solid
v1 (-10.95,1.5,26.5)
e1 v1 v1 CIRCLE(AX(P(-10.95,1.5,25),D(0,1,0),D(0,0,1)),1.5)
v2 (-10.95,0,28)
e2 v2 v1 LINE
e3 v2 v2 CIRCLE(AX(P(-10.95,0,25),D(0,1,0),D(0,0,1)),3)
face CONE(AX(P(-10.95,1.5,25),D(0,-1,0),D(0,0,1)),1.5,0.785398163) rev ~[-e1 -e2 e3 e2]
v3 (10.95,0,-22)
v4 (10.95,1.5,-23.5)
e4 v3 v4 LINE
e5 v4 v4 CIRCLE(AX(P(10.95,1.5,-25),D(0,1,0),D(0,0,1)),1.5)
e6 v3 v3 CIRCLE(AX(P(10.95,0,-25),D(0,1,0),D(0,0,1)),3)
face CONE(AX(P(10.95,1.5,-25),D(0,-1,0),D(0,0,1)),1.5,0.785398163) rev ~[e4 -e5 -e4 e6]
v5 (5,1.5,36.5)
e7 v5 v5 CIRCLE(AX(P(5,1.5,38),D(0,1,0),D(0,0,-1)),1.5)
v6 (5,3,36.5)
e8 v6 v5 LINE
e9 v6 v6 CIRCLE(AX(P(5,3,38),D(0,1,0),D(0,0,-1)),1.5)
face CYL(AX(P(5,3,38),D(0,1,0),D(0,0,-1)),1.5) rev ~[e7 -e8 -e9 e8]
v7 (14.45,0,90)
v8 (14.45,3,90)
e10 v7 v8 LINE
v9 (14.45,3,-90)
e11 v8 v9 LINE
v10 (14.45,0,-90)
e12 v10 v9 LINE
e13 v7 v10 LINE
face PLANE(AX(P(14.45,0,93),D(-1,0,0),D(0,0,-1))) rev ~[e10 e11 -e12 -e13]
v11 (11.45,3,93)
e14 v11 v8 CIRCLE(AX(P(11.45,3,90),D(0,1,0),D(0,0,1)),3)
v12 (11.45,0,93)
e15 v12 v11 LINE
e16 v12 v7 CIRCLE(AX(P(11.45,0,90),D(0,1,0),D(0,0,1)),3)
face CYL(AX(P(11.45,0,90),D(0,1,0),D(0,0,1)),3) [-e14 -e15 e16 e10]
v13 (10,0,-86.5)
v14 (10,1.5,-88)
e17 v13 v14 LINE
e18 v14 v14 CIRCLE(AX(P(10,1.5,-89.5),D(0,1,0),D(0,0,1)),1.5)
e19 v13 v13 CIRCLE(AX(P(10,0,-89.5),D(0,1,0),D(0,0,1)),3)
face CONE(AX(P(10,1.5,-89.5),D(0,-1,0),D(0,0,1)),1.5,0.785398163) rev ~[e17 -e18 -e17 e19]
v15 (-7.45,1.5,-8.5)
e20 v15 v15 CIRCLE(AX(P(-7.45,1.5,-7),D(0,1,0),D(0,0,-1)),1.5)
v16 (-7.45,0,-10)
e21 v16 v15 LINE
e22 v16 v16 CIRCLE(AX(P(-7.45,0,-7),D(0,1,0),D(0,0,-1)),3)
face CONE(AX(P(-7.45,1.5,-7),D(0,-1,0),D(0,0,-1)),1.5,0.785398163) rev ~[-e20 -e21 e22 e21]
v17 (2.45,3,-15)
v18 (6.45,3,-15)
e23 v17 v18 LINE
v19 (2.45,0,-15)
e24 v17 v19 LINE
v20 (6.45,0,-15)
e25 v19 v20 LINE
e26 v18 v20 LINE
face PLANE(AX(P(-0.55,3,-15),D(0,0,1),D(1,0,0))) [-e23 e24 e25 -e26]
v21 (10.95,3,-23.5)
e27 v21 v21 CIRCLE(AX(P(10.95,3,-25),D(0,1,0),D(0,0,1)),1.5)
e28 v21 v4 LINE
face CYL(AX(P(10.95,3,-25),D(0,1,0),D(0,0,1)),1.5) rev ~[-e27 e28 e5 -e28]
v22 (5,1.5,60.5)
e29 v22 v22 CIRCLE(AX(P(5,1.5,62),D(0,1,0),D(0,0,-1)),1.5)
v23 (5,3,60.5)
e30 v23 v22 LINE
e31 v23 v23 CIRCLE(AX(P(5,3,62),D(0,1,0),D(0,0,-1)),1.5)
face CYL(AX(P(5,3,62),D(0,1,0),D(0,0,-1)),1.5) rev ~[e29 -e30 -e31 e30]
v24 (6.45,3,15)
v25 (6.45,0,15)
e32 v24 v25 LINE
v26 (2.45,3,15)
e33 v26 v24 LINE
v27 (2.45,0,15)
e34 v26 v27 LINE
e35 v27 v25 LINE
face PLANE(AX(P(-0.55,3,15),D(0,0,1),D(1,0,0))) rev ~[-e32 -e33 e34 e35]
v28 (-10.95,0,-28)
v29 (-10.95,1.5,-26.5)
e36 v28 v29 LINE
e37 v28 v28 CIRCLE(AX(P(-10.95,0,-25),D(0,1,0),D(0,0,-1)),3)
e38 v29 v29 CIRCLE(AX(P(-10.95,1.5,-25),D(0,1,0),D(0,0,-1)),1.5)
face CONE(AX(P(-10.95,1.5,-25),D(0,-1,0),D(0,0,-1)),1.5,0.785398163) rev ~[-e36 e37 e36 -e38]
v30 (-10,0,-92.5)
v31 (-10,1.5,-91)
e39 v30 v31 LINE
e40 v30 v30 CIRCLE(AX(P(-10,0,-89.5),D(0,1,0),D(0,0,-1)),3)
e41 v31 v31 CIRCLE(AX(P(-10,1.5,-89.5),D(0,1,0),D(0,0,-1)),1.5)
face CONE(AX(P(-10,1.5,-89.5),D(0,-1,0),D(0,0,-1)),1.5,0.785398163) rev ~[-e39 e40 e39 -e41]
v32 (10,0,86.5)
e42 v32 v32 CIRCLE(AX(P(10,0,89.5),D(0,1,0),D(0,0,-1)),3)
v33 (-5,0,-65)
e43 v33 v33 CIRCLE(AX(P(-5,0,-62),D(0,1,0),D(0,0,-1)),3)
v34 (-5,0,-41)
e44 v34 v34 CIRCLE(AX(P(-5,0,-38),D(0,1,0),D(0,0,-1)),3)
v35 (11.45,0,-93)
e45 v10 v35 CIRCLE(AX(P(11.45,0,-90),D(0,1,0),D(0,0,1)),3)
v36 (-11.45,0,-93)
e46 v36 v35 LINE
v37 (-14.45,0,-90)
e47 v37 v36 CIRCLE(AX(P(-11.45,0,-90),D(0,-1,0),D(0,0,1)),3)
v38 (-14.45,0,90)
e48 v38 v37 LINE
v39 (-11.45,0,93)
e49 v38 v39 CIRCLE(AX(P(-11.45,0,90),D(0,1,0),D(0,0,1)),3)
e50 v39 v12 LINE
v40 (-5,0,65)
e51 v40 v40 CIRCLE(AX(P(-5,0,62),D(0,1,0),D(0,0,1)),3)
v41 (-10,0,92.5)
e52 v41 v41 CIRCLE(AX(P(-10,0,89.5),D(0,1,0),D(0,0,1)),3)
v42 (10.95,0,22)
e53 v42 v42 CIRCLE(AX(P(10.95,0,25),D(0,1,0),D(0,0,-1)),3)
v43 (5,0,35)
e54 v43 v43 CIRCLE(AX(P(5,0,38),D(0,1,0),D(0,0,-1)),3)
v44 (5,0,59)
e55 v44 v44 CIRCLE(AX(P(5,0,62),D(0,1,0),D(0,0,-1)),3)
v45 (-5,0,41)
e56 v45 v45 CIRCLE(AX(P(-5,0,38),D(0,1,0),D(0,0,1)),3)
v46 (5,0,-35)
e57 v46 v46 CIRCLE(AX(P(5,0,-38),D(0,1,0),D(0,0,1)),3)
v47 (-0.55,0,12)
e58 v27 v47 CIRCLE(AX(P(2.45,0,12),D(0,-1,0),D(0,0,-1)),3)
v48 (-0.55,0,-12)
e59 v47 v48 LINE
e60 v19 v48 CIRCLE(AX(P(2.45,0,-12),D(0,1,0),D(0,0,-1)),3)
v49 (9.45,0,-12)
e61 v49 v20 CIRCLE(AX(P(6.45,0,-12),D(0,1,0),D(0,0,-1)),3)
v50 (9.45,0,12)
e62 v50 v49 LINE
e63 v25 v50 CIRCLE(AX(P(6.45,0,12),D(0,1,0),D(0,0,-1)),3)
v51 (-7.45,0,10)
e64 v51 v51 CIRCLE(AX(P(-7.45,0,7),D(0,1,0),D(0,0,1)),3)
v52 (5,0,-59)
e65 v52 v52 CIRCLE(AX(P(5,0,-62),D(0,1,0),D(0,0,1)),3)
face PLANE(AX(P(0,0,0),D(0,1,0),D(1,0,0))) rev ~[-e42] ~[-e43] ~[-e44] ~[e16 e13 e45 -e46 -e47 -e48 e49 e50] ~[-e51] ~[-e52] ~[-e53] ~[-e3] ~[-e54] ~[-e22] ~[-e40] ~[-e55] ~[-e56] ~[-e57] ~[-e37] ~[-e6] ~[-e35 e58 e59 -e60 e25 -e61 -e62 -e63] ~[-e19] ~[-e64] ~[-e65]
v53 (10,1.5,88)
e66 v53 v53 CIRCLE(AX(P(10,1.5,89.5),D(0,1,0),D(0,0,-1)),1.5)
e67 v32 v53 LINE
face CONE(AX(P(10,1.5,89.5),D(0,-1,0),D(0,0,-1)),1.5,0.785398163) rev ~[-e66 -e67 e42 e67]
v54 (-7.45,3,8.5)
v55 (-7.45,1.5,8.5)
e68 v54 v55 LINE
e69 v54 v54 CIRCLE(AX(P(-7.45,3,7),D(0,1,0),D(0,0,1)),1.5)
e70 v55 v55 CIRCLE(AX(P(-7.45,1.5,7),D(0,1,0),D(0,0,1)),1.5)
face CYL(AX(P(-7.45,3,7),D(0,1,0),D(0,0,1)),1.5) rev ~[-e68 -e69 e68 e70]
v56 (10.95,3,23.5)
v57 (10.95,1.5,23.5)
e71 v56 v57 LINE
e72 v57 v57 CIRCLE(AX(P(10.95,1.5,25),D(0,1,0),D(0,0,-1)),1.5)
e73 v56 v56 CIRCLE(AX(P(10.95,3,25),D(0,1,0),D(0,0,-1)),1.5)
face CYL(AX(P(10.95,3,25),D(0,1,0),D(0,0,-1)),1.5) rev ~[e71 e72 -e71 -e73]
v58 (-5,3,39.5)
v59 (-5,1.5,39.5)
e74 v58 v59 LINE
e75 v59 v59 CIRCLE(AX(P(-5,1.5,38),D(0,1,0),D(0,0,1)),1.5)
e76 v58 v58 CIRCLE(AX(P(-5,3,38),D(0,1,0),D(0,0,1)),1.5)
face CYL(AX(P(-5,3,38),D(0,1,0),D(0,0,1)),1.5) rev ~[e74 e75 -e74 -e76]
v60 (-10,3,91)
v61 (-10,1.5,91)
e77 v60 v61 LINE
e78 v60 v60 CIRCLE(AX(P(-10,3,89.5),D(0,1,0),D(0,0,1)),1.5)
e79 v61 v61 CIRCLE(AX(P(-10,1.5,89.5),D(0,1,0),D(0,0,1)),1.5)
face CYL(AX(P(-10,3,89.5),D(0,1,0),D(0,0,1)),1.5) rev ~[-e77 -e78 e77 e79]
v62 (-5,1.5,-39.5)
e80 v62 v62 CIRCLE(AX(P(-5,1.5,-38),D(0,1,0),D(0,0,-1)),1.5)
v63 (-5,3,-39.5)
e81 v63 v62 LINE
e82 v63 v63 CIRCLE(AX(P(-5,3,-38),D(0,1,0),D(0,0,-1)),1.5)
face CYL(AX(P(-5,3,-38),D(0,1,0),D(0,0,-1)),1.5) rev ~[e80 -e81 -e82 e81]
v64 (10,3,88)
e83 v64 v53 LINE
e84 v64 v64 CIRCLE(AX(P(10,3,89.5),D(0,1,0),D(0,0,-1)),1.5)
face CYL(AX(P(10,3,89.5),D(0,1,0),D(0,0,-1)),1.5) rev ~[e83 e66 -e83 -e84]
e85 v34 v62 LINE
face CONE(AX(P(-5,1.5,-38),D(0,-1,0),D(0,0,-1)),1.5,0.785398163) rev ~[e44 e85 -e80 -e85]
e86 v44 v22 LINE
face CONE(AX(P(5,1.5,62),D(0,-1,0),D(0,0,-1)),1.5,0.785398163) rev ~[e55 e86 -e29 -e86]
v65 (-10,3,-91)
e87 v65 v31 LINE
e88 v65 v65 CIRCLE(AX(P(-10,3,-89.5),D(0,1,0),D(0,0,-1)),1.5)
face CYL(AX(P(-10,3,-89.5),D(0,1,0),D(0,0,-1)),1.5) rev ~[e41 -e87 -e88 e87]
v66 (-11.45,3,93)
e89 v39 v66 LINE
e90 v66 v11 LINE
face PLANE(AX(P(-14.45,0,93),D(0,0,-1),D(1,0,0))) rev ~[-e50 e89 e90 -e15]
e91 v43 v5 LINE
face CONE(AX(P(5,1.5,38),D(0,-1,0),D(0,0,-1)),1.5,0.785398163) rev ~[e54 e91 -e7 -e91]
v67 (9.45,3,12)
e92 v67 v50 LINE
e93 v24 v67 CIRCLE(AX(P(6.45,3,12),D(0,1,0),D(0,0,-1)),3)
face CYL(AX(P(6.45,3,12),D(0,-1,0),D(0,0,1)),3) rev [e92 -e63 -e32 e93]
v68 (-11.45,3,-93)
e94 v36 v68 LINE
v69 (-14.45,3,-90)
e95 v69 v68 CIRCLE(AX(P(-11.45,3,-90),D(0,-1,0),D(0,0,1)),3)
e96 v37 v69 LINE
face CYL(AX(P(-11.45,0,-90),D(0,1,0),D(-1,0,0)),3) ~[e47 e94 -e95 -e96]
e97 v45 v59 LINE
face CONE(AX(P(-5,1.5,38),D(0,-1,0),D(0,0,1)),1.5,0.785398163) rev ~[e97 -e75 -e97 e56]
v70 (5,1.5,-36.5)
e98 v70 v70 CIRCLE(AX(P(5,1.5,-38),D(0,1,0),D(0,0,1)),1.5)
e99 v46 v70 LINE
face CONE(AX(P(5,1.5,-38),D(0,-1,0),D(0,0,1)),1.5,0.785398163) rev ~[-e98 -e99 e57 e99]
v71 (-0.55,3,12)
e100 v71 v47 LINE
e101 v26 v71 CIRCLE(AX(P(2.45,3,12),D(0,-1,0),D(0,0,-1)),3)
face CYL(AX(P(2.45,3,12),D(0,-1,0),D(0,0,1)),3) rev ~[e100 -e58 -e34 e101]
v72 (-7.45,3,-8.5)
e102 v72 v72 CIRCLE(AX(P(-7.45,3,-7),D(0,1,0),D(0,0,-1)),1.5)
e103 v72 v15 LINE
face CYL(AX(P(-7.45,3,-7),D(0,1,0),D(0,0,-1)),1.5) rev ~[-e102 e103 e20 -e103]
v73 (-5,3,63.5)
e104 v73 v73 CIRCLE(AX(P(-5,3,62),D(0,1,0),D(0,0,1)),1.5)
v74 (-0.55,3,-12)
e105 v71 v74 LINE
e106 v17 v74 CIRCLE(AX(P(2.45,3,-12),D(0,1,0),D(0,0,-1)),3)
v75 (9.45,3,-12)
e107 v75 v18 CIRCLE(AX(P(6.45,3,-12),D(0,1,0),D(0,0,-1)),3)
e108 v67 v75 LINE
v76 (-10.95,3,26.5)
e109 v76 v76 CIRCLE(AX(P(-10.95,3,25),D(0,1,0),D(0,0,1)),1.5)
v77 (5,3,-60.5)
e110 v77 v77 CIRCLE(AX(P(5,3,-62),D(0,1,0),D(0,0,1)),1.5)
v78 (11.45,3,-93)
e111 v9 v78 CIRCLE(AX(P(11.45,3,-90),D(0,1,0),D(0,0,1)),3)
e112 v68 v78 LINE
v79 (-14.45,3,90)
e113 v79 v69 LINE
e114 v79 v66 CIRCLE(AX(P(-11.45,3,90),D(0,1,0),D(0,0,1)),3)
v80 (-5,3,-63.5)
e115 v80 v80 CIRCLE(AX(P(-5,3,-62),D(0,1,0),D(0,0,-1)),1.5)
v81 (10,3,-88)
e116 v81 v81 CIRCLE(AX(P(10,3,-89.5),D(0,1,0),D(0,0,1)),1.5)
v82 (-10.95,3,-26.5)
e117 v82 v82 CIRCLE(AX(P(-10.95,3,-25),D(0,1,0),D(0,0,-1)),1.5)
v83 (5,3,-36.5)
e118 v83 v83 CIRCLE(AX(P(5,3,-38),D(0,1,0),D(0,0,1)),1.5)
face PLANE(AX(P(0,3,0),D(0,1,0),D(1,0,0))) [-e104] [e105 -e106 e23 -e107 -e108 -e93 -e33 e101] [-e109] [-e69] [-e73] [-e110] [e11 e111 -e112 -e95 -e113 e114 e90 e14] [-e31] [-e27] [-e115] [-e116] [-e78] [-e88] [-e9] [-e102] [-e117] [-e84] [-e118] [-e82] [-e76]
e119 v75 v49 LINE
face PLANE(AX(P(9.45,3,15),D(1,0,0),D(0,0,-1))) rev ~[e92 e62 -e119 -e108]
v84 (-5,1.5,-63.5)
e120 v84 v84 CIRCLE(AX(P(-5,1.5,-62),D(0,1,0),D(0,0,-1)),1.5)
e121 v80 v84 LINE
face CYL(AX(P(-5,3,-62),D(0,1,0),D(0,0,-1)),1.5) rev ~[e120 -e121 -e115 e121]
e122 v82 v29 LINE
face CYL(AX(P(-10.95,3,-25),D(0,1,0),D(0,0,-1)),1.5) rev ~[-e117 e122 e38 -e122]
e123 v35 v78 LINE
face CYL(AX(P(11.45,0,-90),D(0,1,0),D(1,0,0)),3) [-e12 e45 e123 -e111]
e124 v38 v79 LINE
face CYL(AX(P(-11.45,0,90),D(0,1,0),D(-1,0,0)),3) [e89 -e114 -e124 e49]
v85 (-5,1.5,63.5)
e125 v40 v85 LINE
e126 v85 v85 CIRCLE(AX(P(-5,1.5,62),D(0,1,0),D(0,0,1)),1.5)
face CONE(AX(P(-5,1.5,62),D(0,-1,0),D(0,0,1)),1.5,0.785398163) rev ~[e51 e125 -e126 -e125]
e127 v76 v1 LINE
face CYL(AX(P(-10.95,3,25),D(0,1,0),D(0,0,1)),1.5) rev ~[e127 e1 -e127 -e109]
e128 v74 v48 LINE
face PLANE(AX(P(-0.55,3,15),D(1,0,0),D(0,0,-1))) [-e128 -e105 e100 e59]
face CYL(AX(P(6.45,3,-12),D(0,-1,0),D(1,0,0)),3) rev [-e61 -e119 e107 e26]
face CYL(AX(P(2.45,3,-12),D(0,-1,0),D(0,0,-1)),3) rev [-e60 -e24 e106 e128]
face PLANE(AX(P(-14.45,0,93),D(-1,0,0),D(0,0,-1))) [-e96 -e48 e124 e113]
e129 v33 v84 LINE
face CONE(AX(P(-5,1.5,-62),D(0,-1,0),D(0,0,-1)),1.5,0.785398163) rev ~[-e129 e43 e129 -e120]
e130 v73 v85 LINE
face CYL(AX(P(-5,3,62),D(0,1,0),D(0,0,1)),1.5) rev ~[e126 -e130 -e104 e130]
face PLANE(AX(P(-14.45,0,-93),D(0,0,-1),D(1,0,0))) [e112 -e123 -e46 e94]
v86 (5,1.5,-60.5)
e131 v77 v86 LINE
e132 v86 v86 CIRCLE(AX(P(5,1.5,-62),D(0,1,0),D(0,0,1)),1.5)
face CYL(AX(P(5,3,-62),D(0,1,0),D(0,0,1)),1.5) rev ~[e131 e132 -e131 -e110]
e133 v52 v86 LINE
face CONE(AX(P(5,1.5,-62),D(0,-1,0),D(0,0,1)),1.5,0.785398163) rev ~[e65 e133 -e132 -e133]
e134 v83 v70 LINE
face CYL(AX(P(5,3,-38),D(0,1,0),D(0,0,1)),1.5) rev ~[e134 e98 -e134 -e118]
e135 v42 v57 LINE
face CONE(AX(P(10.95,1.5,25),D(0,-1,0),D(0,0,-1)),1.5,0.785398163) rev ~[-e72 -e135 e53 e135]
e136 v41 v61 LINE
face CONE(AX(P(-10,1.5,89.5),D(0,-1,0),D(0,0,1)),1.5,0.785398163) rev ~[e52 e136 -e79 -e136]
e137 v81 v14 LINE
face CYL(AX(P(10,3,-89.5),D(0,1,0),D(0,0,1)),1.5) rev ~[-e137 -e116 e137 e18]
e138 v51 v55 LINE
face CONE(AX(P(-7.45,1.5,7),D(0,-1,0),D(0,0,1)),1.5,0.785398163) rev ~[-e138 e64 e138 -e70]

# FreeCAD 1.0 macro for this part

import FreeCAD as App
import Part
import Sketcher
from FreeCAD import Vector
Q = App.Units.Quantity


def edges_at(feature, points):
    """Names of the edges that pass closest to the given points."""
    edges = feature.Shape.Edges
    near = lambda p: min(range(len(edges)), key=lambda i: edges[i].distToShape(Part.Vertex(*p))[0])
    return sorted({f"Edge{near(p) + 1}" for p in points})

doc = App.newDocument("Part")
body = doc.addObject("PartDesign::Body", "Body")

sketch1 = body.newObject("Sketcher::SketchObject", "Sketch")
sketch1.AttachmentSupport = (doc.getObject("XZ_Plane"), [""])
sketch1.MapMode = "FlatFace"
sketch1.addGeometry([
    Part.LineSegment(Vector(-14, -93, 0), Vector(-14, 93, 0)),
    Part.LineSegment(Vector(-14, 93, 0), Vector(14, 93, 0)),
    Part.LineSegment(Vector(14, 93, 0), Vector(14, -93, 0)),
    Part.LineSegment(Vector(14, -93, 0), Vector(-14, -93, 0)),
], False)
sketch1.addConstraint([
    Sketcher.Constraint("Coincident", 0, 2, 1, 1),
    Sketcher.Constraint("Coincident", 1, 2, 2, 1),
    Sketcher.Constraint("Coincident", 2, 2, 3, 1),
    Sketcher.Constraint("Coincident", 3, 2, 0, 1),
    Sketcher.Constraint("Vertical", 0),
    Sketcher.Constraint("Horizontal", 1),
    Sketcher.Constraint("Vertical", 2),
    Sketcher.Constraint("Horizontal", 3),
    Sketcher.Constraint("Symmetric", 0, 2, 2, 2, -1, 1),
    Sketcher.Constraint("DistanceY", 0, 1, 0, 2, Q("186 mm")),
    Sketcher.Constraint("DistanceX", 1, 1, 1, 2, Q("28.9 mm")),
])
pad1 = body.newObject("PartDesign::Pad", "Pad")
pad1.Profile = sketch1
pad1.Length = 3
pad1.Reversed = True
doc.recompute()

fillet = body.newObject("PartDesign::Fillet", "Fillet")
fillet.Base = (pad1, edges_at(pad1, [
    (14.45, 1.5, 93),
    (-14.45, 1.5, 93),
    (-14.45, 1.5, -93),
    (14.45, 1.5, -93),
]))
fillet.Radius = 3

sketch2 = body.newObject("Sketcher::SketchObject", "Sketch001")
sketch2.AttachmentSupport = (doc.getObject("XZ_Plane"), [""])
sketch2.MapMode = "FlatFace"
sketch2.AttachmentOffset = App.Placement(Vector(0, 0, -3), App.Rotation())
sketch2.addGeometry([
    Part.Circle(Vector(-10, 89.5, 0), Vector(0, 0, 1), 1.5),
    Part.Circle(Vector(10, 89.5, 0), Vector(0, 0, 1), 1.5),
    Part.Circle(Vector(10, -89.5, 0), Vector(0, 0, 1), 1.5),
    Part.Circle(Vector(-10, -89.5, 0), Vector(0, 0, 1), 1.5),
    Part.Circle(Vector(-5, 38, 0), Vector(0, 0, 1), 1.5),
    Part.Circle(Vector(-5, 62, 0), Vector(0, 0, 1), 1.5),
    Part.Circle(Vector(5, 38, 0), Vector(0, 0, 1), 1.5),
    Part.Circle(Vector(5, 62, 0), Vector(0, 0, 1), 1.5),
    Part.Circle(Vector(5, -62, 0), Vector(0, 0, 1), 1.5),
    Part.Circle(Vector(5, -38, 0), Vector(0, 0, 1), 1.5),
    Part.Circle(Vector(-5, -62, 0), Vector(0, 0, 1), 1.5),
    Part.Circle(Vector(-5, -38, 0), Vector(0, 0, 1), 1.5),
    Part.Circle(Vector(-7.5, 7, 0), Vector(0, 0, 1), 1.5),
    Part.Circle(Vector(-7.5, -7, 0), Vector(0, 0, 1), 1.5),
    Part.Circle(Vector(10.9, -25, 0), Vector(0, 0, 1), 1.5),
    Part.Circle(Vector(10.9, 25, 0), Vector(0, 0, 1), 1.5),
    Part.Circle(Vector(-10.9, 25, 0), Vector(0, 0, 1), 1.5),
    Part.Circle(Vector(-10.9, -25, 0), Vector(0, 0, 1), 1.5),
], False)
sketch2.addConstraint([
    Sketcher.Constraint("Equal", 0, 1),
    Sketcher.Constraint("Equal", 1, 2),
    Sketcher.Constraint("Equal", 2, 3),
    Sketcher.Constraint("Equal", 3, 4),
    Sketcher.Constraint("Equal", 4, 5),
    Sketcher.Constraint("Equal", 5, 6),
    Sketcher.Constraint("Equal", 6, 7),
    Sketcher.Constraint("Equal", 7, 8),
    Sketcher.Constraint("Equal", 8, 9),
    Sketcher.Constraint("Equal", 9, 10),
    Sketcher.Constraint("Equal", 10, 11),
    Sketcher.Constraint("Equal", 11, 12),
    Sketcher.Constraint("Equal", 12, 13),
    Sketcher.Constraint("Equal", 13, 14),
    Sketcher.Constraint("Equal", 14, 15),
    Sketcher.Constraint("Equal", 15, 16),
    Sketcher.Constraint("Equal", 16, 17),
    Sketcher.Constraint("Symmetric", 0, 3, 2, 3, -1, 1),
    Sketcher.Constraint("Symmetric", 1, 3, 3, 3, -1, 1),
    Sketcher.Constraint("Symmetric", 5, 3, 8, 3, -1, 1),
    Sketcher.Constraint("Symmetric", 4, 3, 9, 3, -1, 1),
    Sketcher.Constraint("Symmetric", 7, 3, 10, 3, -1, 1),
    Sketcher.Constraint("Symmetric", 6, 3, 11, 3, -1, 1),
    Sketcher.Constraint("Symmetric", 14, 3, 16, 3, -1, 1),
    Sketcher.Constraint("Symmetric", 15, 3, 17, 3, -1, 1),
    Sketcher.Constraint("Symmetric", 0, 3, 1, 3, -2),
    Sketcher.Constraint("Symmetric", 4, 3, 6, 3, -2),
    Sketcher.Constraint("Symmetric", 5, 3, 7, 3, -2),
    Sketcher.Constraint("Symmetric", 15, 3, 16, 3, -2),
    Sketcher.Constraint("Symmetric", 12, 3, 13, 3, -1),
    Sketcher.Constraint("Vertical", 4, 3, 5, 3),
    Sketcher.Constraint("Diameter", 0, Q("3 mm")),
    Sketcher.Constraint("DistanceX", 0, 3, -1, 1, Q("10 mm")),
    Sketcher.Constraint("DistanceX", 4, 3, -1, 1, Q("5 mm")),
    Sketcher.Constraint("DistanceY", -1, 1, 4, 3, Q("38 mm")),
    Sketcher.Constraint("DistanceY", -1, 1, 5, 3, Q("62 mm")),
    Sketcher.Constraint("DistanceY", -1, 1, 12, 3, Q("7 mm")),
    Sketcher.Constraint("DistanceY", 14, 3, -1, 1, Q("25 mm")),
    Sketcher.Constraint("DistanceY", 2, 3, 1, 3, Q("179 mm")),
    Sketcher.Constraint("DistanceX", 13, 3, 14, 3, Q("18.4 mm")),
    Sketcher.Constraint("DistanceX", 16, 3, 12, 3, Q("3.5 mm")),
])
pocket1 = body.newObject("PartDesign::Pocket", "Pocket")
pocket1.Profile = sketch2
pocket1.Length = 3
pocket1.Reversed = True
doc.recompute()

chamfer = body.newObject("PartDesign::Chamfer", "Chamfer")
chamfer.Base = (pocket1, edges_at(pocket1, [
    (-7.45, 0, 5.5),
    (-5, 0, -36.5),
    (-5, 0, -60.5),
    (5, 0, -39.5),
    (-7.45, 0, -5.5),
    (10.95, 0, -26.5),
    (10.95, 0, 26.5),
    (-10.95, 0, 23.5),
    (10, 0, 91),
    (10, 0, -91),
    (-10, 0, -88),
    (-5, 0, 36.5),
    (5, 0, -63.5),
    (5, 0, 63.5),
    (5, 0, 39.5),
    (-5, 0, 60.5),
    (-10.95, 0, -23.5),
    (-10, 0, 88),
]))
chamfer.Size = 1.5

sketch3 = body.newObject("Sketcher::SketchObject", "Sketch002")
sketch3.AttachmentSupport = (doc.getObject("XZ_Plane"), [""])
sketch3.MapMode = "FlatFace"
sketch3.AttachmentOffset = App.Placement(Vector(0, 0, -3), App.Rotation())
sketch3.addGeometry([
    Part.LineSegment(Vector(-1, -15, 0), Vector(-1, 15, 0)),
    Part.LineSegment(Vector(-1, 15, 0), Vector(9, 15, 0)),
    Part.LineSegment(Vector(9, 15, 0), Vector(9, -15, 0)),
    Part.LineSegment(Vector(9, -15, 0), Vector(-1, -15, 0)),
], False)
sketch3.addConstraint([
    Sketcher.Constraint("Coincident", 0, 2, 1, 1),
    Sketcher.Constraint("Coincident", 1, 2, 2, 1),
    Sketcher.Constraint("Coincident", 2, 2, 3, 1),
    Sketcher.Constraint("Coincident", 3, 2, 0, 1),
    Sketcher.Constraint("Vertical", 0),
    Sketcher.Constraint("Horizontal", 1),
    Sketcher.Constraint("Vertical", 2),
    Sketcher.Constraint("Horizontal", 3),
    Sketcher.Constraint("DistanceX", 1, 1, 1, 2, Q("10 mm")),
    Sketcher.Constraint("DistanceY", 0, 1, 0, 2, Q("30 mm")),
    Sketcher.Constraint("DistanceY", -1, 1, 0, 2, Q("15 mm")),
    Sketcher.Constraint("DistanceX", 0, 2, -1, 1, Q("0.55 mm")),
])
pocket2 = body.newObject("PartDesign::Pocket", "Pocket001")
pocket2.Profile = sketch3
pocket2.Length = 3
pocket2.Reversed = True
doc.recompute()

fillet2 = body.newObject("PartDesign::Fillet", "Fillet001")
fillet2.Base = (pocket2, edges_at(pocket2, [
    (9.45, 1.5, -15),
    (9.45, 1.5, 15),
    (-0.55, 1.5, 15),
    (-0.55, 1.5, -15),
]))
fillet2.Radius = 3

doc.recompute()
